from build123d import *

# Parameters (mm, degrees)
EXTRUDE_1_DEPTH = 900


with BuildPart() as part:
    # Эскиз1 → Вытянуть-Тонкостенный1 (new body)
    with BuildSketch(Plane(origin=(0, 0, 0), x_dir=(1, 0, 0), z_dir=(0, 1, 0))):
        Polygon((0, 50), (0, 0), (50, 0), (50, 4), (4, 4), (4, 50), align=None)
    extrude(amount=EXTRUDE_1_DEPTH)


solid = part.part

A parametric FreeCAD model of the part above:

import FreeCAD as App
import Part
import Sketcher

V = App.Vector
Q = App.Units.Quantity


def add_polygon(sketch, points):
    """Adds a closed chain of lines whose ends are joined by coincident constraints."""
    first, n = sketch.GeometryCount, len(points)
    for a, b in zip(points, points[1:] + points[:1]):
        sketch.addGeometry(Part.LineSegment(App.Vector(*a, 0), App.Vector(*b, 0)), False)
    for i in range(n):
        sketch.addConstraint(Sketcher.Constraint("Coincident", first + i, 2, first + (i + 1) % n, 1))

doc = App.newDocument("Part")
body = doc.addObject("PartDesign::Body", "Body")

# Sketch on XZ plane
sketch1 = doc.addObject("Sketcher::SketchObject", "Sketch")
body.addObject(sketch1)
sketch1.AttachmentSupport = (doc.XZ_Plane, [""])
sketch1.MapMode = "FlatFace"
add_polygon(sketch1, [(0, -50), (0, 0), (50, 0), (50, -4), (4, -4), (4, -50)])  # lines 0-5
sketch1.addConstraint([
    Sketcher.Constraint("Vertical", 0),
    Sketcher.Constraint("Horizontal", 1),
    Sketcher.Constraint("Vertical", 2),
    Sketcher.Constraint("Horizontal", 3),
    Sketcher.Constraint("Vertical", 4),
    Sketcher.Constraint("Horizontal", 5),
    Sketcher.Constraint("Coincident", 0, 2, -1, 1),
    Sketcher.Constraint("Equal", 1, 0),
    Sketcher.Constraint("Equal", 5, 2),
    Sketcher.Constraint("DistanceX", 1, 1, 1, 2, Q("50 mm")),
    Sketcher.Constraint("DistanceX", 3, 2, 3, 1, Q("46 mm")),
])
pad1 = doc.addObject("PartDesign::Pad", "Pad")
body.addObject(pad1)
pad1.Profile = sketch1
pad1.Length = 900
pad1.Reversed = True

doc.recompute()
